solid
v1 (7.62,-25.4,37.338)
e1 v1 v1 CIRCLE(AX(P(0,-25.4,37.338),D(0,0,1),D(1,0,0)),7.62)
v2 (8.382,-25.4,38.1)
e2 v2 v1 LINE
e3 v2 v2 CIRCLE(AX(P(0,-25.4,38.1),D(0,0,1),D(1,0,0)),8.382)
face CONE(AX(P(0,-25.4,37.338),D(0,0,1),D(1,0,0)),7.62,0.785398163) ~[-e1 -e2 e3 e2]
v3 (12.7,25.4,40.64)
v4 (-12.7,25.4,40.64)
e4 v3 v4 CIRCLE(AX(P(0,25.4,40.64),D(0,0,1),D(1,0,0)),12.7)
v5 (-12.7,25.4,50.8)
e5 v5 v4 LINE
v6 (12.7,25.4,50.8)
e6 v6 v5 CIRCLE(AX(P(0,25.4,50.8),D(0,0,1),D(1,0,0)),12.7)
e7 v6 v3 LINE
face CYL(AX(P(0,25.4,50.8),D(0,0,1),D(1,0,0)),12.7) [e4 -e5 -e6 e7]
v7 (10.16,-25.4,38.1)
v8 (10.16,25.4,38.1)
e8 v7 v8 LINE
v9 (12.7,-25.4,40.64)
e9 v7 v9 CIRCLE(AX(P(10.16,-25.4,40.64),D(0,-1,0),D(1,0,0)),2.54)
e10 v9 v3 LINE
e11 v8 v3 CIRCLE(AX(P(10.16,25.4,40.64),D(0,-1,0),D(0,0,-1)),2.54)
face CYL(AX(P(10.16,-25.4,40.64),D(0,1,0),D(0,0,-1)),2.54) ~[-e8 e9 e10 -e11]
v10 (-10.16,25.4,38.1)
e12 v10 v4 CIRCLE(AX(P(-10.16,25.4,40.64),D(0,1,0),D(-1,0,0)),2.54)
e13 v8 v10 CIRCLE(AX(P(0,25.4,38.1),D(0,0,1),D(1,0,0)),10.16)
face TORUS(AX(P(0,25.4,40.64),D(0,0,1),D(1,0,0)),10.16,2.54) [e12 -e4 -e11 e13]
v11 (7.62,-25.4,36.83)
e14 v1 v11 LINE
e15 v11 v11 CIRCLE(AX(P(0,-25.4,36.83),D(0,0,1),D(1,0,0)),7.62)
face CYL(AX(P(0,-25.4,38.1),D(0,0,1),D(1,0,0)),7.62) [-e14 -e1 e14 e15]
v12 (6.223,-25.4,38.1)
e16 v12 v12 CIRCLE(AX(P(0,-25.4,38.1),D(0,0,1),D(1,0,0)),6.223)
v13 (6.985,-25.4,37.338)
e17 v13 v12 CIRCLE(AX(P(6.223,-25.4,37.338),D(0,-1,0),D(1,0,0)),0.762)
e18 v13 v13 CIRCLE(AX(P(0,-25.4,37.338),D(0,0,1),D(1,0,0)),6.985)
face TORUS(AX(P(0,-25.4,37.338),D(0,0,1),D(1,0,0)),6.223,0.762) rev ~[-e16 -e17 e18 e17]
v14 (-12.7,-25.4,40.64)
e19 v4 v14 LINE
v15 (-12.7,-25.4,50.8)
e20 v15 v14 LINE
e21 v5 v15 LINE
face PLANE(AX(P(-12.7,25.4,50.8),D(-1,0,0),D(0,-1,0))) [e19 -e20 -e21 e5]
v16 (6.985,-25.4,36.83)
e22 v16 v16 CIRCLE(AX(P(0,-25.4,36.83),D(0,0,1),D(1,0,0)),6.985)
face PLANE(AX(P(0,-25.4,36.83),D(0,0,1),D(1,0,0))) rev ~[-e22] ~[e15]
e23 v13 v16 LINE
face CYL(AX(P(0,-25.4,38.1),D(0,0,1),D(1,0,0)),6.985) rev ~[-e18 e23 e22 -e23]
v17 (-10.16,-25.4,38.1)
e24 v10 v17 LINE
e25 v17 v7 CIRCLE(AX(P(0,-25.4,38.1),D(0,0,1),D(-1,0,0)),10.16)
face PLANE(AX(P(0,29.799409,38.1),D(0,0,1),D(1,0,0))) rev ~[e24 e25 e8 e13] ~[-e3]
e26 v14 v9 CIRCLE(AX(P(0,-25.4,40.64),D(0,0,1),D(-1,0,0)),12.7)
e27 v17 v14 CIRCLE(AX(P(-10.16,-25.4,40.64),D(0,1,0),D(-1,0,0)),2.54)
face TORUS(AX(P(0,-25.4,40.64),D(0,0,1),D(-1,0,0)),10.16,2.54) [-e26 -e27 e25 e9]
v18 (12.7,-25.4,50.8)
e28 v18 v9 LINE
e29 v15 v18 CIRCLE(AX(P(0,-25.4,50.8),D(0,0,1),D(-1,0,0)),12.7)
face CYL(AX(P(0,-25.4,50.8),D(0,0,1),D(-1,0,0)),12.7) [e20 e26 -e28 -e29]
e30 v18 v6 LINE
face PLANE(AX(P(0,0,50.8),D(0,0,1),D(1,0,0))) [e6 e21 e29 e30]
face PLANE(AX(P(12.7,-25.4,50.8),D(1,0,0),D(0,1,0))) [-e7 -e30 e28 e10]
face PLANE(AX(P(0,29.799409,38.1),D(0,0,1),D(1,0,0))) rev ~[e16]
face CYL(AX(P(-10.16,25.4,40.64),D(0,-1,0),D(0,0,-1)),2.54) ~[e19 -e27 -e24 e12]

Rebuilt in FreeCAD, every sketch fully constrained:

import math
import FreeCAD as App
import Part
import Sketcher
from FreeCAD import Vector
Q = App.Units.Quantity


def edges_at(feature, points):
    """Names of the edges that pass closest to the given points."""
    edges = feature.Shape.Edges
    near = lambda p: min(range(len(edges)), key=lambda i: edges[i].distToShape(Part.Vertex(*p))[0])
    return sorted({f"Edge{near(p) + 1}" for p in points})

doc = App.newDocument("Part")
body = doc.addObject("PartDesign::Body", "Body")

# Sketch on XY plane
sketch1 = doc.addObject("Sketcher::SketchObject", "Sketch")
body.addObject(sketch1)
sketch1.AttachmentSupport = (doc.XY_Plane, [""])
sketch1.MapMode = "FlatFace"
sketch1.addGeometry(Part.LineSegment(Vector(-51, 51, 0), Vector(-51, -51, 0)), False)
sketch1.addGeometry(Part.LineSegment(Vector(-51, -51, 0), Vector(51, -51, 0)), False)
sketch1.addGeometry(Part.LineSegment(Vector(51, -51, 0), Vector(51, 51, 0)), False)
sketch1.addGeometry(Part.LineSegment(Vector(51, 51, 0), Vector(-51, 51, 0)), False)
sketch1.addConstraint(Sketcher.Constraint("Coincident", 0, 2, 1, 1))
sketch1.addConstraint(Sketcher.Constraint("Coincident", 1, 2, 2, 1))
sketch1.addConstraint(Sketcher.Constraint("Coincident", 2, 2, 3, 1))
sketch1.addConstraint(Sketcher.Constraint("Coincident", 3, 2, 0, 1))
sketch1.addConstraint(Sketcher.Constraint("Vertical", 0))
sketch1.addConstraint(Sketcher.Constraint("Horizontal", 1))
sketch1.addConstraint(Sketcher.Constraint("Vertical", 2))
sketch1.addConstraint(Sketcher.Constraint("Horizontal", 3))
sketch1.addConstraint(Sketcher.Constraint("Symmetric", 0, 2, 2, 2, -1, 1))
sketch1.addConstraint(Sketcher.Constraint("Equal", 3, 0))
sketch1.addConstraint(Sketcher.Constraint("DistanceX", 1, 1, 1, 2, Q("4 in")))
pad1 = doc.addObject("PartDesign::Pad", "Pad")
body.addObject(pad1)
pad1.Profile = sketch1
pad1.Length = Q("2 in")

# Sketch on XY plane
sketch2 = doc.addObject("Sketcher::SketchObject", "Sketch001")
body.addObject(sketch2)
sketch2.AttachmentSupport = (doc.XY_Plane, [""])
sketch2.MapMode = "FlatFace"
sketch2.AttachmentOffset = App.Placement(Vector(0, 0, 2 * 25.4), App.Rotation())
sketch2.addGeometry(Part.ArcOfCircle(Part.Circle(Vector(0, 25, 0), Vector(0, 0, 1), 13), math.radians(0), math.radians(180)), False)
sketch2.addGeometry(Part.LineSegment(Vector(-13, 25, 0), Vector(-13, -25, 0)), False)
sketch2.addGeometry(Part.ArcOfCircle(Part.Circle(Vector(0, -25, 0), Vector(0, 0, 1), 13), math.radians(180), math.radians(360)), False)
sketch2.addGeometry(Part.LineSegment(Vector(13, -25, 0), Vector(13, 25, 0)), False)
sketch2.addConstraint(Sketcher.Constraint("Tangent", 0, 2, 1, 1))
sketch2.addConstraint(Sketcher.Constraint("Tangent", 1, 2, 2, 1))
sketch2.addConstraint(Sketcher.Constraint("Tangent", 2, 2, 3, 1))
sketch2.addConstraint(Sketcher.Constraint("Tangent", 3, 2, 0, 1))
sketch2.addConstraint(Sketcher.Constraint("Vertical", 1))
sketch2.addConstraint(Sketcher.Constraint("Vertical", 3))
sketch2.addConstraint(Sketcher.Constraint("Symmetric", 0, 3, 2, 3, -1, 1))
sketch2.addConstraint(Sketcher.Constraint("Radius", 0, Q("0.5 in")))
sketch2.addConstraint(Sketcher.Constraint("DistanceY", 1, 2, 1, 1, Q("2 in")))
pocket1 = doc.addObject("PartDesign::Pocket", "Pocket")
body.addObject(pocket1)
pocket1.Profile = sketch2
pocket1.Length = Q("0.5 in")

# Sketch on XY plane
sketch3 = doc.addObject("Sketcher::SketchObject", "Sketch002")
body.addObject(sketch3)
sketch3.AttachmentSupport = (doc.XY_Plane, [""])
sketch3.MapMode = "FlatFace"
sketch3.AttachmentOffset = App.Placement(Vector(0, 0, 1.5 * 25.4), App.Rotation())
sketch3.addGeometry(Part.Circle(Vector(0, -25, 0), Vector(0, 0, 1), 8), False)
sketch3.addGeometry(Part.Circle(Vector(0, -25, 0), Vector(0, 0, 1), 7), False)
sketch3.addConstraint(Sketcher.Constraint("Coincident", 1, 3, 0, 3))
sketch3.addConstraint(Sketcher.Constraint("PointOnObject", 0, 3, -2))
sketch3.addConstraint(Sketcher.Constraint("Diameter", 0, Q("0.6 in")))
sketch3.addConstraint(Sketcher.Constraint("Diameter", 1, Q("0.55 in")))
sketch3.addConstraint(Sketcher.Constraint("DistanceY", 0, 3, -1, 1, Q("1 in")))
pocket2 = doc.addObject("PartDesign::Pocket", "Pocket001")
body.addObject(pocket2)
pocket2.Profile = sketch3
pocket2.Length = Q("0.05 in")
doc.recompute()

chamfer = doc.addObject("PartDesign::Chamfer", "Chamfer")
body.addObject(chamfer)
chamfer.Base = (pocket2, edges_at(pocket2, [(-7.62, -25.4, 38.1), (0, -50.8, 0)]))
chamfer.Size = Q("0.03 in")
doc.recompute()

fillet = doc.addObject("PartDesign::Fillet", "Fillet")
body.addObject(fillet)
fillet.Base = (chamfer, edges_at(chamfer, [(-6.985, -25.4, 38.1)]))
fillet.Radius = Q("0.03 in")
doc.recompute()

fillet2 = doc.addObject("PartDesign::Fillet", "Fillet001")
body.addObject(fillet2)
fillet2.Base = (fillet, edges_at(fillet, [(0, -38.1, 38.1)]))
fillet2.Radius = Q("0.1 in")
body2 = doc.addObject("PartDesign::Body", "Body001")

# Sketch on XY plane
sketch4 = doc.addObject("Sketcher::SketchObject", "Sketch003")
body2.addObject(sketch4)
sketch4.AttachmentSupport = (doc.getObject("XY_Plane001"), [""])
sketch4.MapMode = "FlatFace"
sketch4.AttachmentOffset = App.Placement(Vector(0, 0, 2 * 25.4), App.Rotation())
sketch4.addGeometry(Part.ArcOfCircle(Part.Circle(Vector(0, -25, 0), Vector(0, 0, 1), 13), math.radians(180), math.radians(360)), False)
sketch4.addGeometry(Part.LineSegment(Vector(13, -25, 0), Vector(13, 25, 0)), False)
sketch4.addGeometry(Part.ArcOfCircle(Part.Circle(Vector(0, 25, 0), Vector(0, 0, 1), 13), math.radians(0), math.radians(180)), False)
sketch4.addGeometry(Part.LineSegment(Vector(-13, 25, 0), Vector(-13, -25, 0)), False)
sketch4.addConstraint(Sketcher.Constraint("Tangent", 0, 2, 1, 1))
sketch4.addConstraint(Sketcher.Constraint("Tangent", 1, 2, 2, 1))
sketch4.addConstraint(Sketcher.Constraint("Tangent", 2, 2, 3, 1))
sketch4.addConstraint(Sketcher.Constraint("Tangent", 3, 2, 0, 1))
sketch4.addConstraint(Sketcher.Constraint("Vertical", 1))
sketch4.addConstraint(Sketcher.Constraint("Vertical", 3))
sketch4.addConstraint(Sketcher.Constraint("Symmetric", 0, 3, 2, 3, -1, 1))
sketch4.addConstraint(Sketcher.Constraint("Radius", 0, Q("0.5 in")))
sketch4.addConstraint(Sketcher.Constraint("DistanceY", 1, 1, 1, 2, Q("2 in")))
pad2 = doc.addObject("PartDesign::Pad", "Pad001")
body2.addObject(pad2)
pad2.Profile = sketch4
pad2.Length = Q("1 in")
pad2.Reversed = True
doc.recompute()

boolean = doc.addObject("PartDesign::Boolean", "Boolean")
body2.addObject(boolean)
boolean.Type = "Cut"
boolean.addObjects([body])

doc.recompute()
